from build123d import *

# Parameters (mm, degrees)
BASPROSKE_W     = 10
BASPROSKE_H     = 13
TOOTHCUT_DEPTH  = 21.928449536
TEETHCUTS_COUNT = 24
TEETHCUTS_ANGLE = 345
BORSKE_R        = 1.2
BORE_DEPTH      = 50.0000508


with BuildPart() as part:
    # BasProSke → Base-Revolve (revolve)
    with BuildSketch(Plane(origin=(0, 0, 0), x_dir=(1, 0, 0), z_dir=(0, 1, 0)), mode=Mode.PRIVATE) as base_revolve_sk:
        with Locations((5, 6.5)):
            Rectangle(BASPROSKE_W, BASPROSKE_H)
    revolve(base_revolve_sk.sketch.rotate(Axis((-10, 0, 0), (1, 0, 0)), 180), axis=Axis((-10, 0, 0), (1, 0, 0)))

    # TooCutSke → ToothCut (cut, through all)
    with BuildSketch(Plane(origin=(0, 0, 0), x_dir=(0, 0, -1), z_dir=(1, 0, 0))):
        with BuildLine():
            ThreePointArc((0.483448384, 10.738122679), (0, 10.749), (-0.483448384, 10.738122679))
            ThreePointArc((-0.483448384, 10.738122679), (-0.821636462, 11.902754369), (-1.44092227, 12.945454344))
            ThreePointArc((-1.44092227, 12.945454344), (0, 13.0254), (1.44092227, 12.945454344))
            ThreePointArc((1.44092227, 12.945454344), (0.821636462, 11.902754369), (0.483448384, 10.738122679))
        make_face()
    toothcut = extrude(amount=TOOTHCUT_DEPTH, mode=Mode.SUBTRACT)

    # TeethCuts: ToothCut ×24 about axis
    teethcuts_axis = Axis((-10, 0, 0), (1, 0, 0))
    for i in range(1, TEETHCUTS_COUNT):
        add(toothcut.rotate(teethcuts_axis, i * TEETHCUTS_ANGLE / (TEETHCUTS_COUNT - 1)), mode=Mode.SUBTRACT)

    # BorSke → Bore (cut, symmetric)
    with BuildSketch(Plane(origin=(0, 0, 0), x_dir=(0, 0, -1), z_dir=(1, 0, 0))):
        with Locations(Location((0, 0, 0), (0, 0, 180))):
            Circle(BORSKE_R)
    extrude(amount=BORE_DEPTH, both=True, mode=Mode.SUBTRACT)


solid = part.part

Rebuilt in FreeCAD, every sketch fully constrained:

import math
import FreeCAD as App
import Part
import Sketcher

doc = App.newDocument("Part")
body = doc.addObject("PartDesign::Body", "Body")

sketch1 = body.newObject("Sketcher::SketchObject", "Sketch")
sketch1.AttachmentSupport = (doc.getObject("XZ_Plane"), [""])
sketch1.MapMode = "FlatFace"
sketch1.addGeometry([
    Part.LineSegment(App.Vector(0, -13, 0), App.Vector(0, 0, 0)),
    Part.LineSegment(App.Vector(0, 0, 0), App.Vector(10, 0, 0)),
    Part.LineSegment(App.Vector(10, 0, 0), App.Vector(10, -13, 0)),
    Part.LineSegment(App.Vector(10, -13, 0), App.Vector(0, -13, 0)),
], False)
sketch1.addConstraint([
    Sketcher.Constraint("Coincident", 0, 2, 1, 1),
    Sketcher.Constraint("Coincident", 1, 2, 2, 1),
    Sketcher.Constraint("Coincident", 2, 2, 3, 1),
    Sketcher.Constraint("Coincident", 3, 2, 0, 1),
    Sketcher.Constraint("Vertical", 0),
    Sketcher.Constraint("Horizontal", 1),
    Sketcher.Constraint("Vertical", 2),
    Sketcher.Constraint("Horizontal", 3),
    Sketcher.Constraint("Coincident", 0, 2, -1, 1),
    Sketcher.Constraint("DistanceX", 1, 1, 1, 2, 10.0),
    Sketcher.Constraint("DistanceY", 0, 1, 0, 2, 13.0),
])
revolution = body.newObject("PartDesign::Revolution", "Revolution")
revolution.Profile = sketch1
revolution.ReferenceAxis = (sketch1, ["H_Axis"])
revolution.Angle = 360

sketch2 = body.newObject("Sketcher::SketchObject", "Sketch001")
sketch2.AttachmentSupport = (doc.getObject("YZ_Plane"), [""])
sketch2.MapMode = "FlatFace"
sketch2.addGeometry([
    Part.ArcOfCircle(Part.Circle(App.Vector(0, 0, 0), App.Vector(0, 0, 1), 10.7), math.radians(-2.58), math.radians(2.58)),
    Part.ArcOfCircle(Part.Circle(App.Vector(10, -5.2, 0), App.Vector(0, 0, 1), 4.8), math.radians(52), math.radians(81)),
    Part.ArcOfCircle(Part.Circle(App.Vector(0, 0, 0), App.Vector(0, 0, 1), 13), math.radians(-6.35), math.radians(6.35)),
    Part.ArcOfCircle(Part.Circle(App.Vector(10, 5.2, 0), App.Vector(0, 0, 1), 4.8), math.radians(-81), math.radians(-52)),
], False)
sketch2.addConstraint([
    Sketcher.Constraint("Coincident", 0, 1, 1, 2),
    Sketcher.Constraint("Coincident", 1, 1, 2, 1),
    Sketcher.Constraint("Coincident", 2, 2, 3, 2),
    Sketcher.Constraint("Coincident", 3, 1, 0, 2),
    Sketcher.Constraint("Coincident", 0, 3, -1, 1),
    Sketcher.Constraint("Coincident", 2, 3, -1, 1),
    Sketcher.Constraint("Equal", 1, 3),
    Sketcher.Constraint("Symmetric", 1, 3, 3, 3, -1),
    Sketcher.Constraint("Radius", 1, 4.8),
    Sketcher.Constraint("Radius", 0, 10.749),
    Sketcher.Constraint("Radius", 2, 13.0254),
    Sketcher.Constraint("DistanceY", 1, 3, -1, 1, 5.225202),
    Sketcher.Constraint("DistanceX", -1, 1, 1, 3, 9.992621),
])
pocket1 = body.newObject("PartDesign::Pocket", "Pocket")
pocket1.Profile = sketch2
pocket1.Type = "ThroughAll"
pocket1.Reversed = True
doc.recompute()

polarpattern = body.newObject("PartDesign::PolarPattern", "PolarPattern")
polarpattern.Originals = [pocket1]
polarpattern.Axis = (doc.getObject("X_Axis"), [""])
polarpattern.Angle = 360
polarpattern.Occurrences = 24
body.Tip = polarpattern

sketch3 = body.newObject("Sketcher::SketchObject", "Sketch002")
sketch3.AttachmentSupport = (doc.getObject("YZ_Plane"), [""])
sketch3.MapMode = "FlatFace"
sketch3.addGeometry(Part.Circle(App.Vector(0, 0, 0), App.Vector(0, 0, 1), 1.2), False)
sketch3.addConstraint([
    Sketcher.Constraint("Coincident", 0, 3, -1, 1),
    Sketcher.Constraint("Diameter", 0, 2.4),
])
pocket2 = body.newObject("PartDesign::Pocket", "Pocket001")
pocket2.Profile = sketch3
pocket2.Length = 100.000102
pocket2.Midplane = True

doc.recompute()
